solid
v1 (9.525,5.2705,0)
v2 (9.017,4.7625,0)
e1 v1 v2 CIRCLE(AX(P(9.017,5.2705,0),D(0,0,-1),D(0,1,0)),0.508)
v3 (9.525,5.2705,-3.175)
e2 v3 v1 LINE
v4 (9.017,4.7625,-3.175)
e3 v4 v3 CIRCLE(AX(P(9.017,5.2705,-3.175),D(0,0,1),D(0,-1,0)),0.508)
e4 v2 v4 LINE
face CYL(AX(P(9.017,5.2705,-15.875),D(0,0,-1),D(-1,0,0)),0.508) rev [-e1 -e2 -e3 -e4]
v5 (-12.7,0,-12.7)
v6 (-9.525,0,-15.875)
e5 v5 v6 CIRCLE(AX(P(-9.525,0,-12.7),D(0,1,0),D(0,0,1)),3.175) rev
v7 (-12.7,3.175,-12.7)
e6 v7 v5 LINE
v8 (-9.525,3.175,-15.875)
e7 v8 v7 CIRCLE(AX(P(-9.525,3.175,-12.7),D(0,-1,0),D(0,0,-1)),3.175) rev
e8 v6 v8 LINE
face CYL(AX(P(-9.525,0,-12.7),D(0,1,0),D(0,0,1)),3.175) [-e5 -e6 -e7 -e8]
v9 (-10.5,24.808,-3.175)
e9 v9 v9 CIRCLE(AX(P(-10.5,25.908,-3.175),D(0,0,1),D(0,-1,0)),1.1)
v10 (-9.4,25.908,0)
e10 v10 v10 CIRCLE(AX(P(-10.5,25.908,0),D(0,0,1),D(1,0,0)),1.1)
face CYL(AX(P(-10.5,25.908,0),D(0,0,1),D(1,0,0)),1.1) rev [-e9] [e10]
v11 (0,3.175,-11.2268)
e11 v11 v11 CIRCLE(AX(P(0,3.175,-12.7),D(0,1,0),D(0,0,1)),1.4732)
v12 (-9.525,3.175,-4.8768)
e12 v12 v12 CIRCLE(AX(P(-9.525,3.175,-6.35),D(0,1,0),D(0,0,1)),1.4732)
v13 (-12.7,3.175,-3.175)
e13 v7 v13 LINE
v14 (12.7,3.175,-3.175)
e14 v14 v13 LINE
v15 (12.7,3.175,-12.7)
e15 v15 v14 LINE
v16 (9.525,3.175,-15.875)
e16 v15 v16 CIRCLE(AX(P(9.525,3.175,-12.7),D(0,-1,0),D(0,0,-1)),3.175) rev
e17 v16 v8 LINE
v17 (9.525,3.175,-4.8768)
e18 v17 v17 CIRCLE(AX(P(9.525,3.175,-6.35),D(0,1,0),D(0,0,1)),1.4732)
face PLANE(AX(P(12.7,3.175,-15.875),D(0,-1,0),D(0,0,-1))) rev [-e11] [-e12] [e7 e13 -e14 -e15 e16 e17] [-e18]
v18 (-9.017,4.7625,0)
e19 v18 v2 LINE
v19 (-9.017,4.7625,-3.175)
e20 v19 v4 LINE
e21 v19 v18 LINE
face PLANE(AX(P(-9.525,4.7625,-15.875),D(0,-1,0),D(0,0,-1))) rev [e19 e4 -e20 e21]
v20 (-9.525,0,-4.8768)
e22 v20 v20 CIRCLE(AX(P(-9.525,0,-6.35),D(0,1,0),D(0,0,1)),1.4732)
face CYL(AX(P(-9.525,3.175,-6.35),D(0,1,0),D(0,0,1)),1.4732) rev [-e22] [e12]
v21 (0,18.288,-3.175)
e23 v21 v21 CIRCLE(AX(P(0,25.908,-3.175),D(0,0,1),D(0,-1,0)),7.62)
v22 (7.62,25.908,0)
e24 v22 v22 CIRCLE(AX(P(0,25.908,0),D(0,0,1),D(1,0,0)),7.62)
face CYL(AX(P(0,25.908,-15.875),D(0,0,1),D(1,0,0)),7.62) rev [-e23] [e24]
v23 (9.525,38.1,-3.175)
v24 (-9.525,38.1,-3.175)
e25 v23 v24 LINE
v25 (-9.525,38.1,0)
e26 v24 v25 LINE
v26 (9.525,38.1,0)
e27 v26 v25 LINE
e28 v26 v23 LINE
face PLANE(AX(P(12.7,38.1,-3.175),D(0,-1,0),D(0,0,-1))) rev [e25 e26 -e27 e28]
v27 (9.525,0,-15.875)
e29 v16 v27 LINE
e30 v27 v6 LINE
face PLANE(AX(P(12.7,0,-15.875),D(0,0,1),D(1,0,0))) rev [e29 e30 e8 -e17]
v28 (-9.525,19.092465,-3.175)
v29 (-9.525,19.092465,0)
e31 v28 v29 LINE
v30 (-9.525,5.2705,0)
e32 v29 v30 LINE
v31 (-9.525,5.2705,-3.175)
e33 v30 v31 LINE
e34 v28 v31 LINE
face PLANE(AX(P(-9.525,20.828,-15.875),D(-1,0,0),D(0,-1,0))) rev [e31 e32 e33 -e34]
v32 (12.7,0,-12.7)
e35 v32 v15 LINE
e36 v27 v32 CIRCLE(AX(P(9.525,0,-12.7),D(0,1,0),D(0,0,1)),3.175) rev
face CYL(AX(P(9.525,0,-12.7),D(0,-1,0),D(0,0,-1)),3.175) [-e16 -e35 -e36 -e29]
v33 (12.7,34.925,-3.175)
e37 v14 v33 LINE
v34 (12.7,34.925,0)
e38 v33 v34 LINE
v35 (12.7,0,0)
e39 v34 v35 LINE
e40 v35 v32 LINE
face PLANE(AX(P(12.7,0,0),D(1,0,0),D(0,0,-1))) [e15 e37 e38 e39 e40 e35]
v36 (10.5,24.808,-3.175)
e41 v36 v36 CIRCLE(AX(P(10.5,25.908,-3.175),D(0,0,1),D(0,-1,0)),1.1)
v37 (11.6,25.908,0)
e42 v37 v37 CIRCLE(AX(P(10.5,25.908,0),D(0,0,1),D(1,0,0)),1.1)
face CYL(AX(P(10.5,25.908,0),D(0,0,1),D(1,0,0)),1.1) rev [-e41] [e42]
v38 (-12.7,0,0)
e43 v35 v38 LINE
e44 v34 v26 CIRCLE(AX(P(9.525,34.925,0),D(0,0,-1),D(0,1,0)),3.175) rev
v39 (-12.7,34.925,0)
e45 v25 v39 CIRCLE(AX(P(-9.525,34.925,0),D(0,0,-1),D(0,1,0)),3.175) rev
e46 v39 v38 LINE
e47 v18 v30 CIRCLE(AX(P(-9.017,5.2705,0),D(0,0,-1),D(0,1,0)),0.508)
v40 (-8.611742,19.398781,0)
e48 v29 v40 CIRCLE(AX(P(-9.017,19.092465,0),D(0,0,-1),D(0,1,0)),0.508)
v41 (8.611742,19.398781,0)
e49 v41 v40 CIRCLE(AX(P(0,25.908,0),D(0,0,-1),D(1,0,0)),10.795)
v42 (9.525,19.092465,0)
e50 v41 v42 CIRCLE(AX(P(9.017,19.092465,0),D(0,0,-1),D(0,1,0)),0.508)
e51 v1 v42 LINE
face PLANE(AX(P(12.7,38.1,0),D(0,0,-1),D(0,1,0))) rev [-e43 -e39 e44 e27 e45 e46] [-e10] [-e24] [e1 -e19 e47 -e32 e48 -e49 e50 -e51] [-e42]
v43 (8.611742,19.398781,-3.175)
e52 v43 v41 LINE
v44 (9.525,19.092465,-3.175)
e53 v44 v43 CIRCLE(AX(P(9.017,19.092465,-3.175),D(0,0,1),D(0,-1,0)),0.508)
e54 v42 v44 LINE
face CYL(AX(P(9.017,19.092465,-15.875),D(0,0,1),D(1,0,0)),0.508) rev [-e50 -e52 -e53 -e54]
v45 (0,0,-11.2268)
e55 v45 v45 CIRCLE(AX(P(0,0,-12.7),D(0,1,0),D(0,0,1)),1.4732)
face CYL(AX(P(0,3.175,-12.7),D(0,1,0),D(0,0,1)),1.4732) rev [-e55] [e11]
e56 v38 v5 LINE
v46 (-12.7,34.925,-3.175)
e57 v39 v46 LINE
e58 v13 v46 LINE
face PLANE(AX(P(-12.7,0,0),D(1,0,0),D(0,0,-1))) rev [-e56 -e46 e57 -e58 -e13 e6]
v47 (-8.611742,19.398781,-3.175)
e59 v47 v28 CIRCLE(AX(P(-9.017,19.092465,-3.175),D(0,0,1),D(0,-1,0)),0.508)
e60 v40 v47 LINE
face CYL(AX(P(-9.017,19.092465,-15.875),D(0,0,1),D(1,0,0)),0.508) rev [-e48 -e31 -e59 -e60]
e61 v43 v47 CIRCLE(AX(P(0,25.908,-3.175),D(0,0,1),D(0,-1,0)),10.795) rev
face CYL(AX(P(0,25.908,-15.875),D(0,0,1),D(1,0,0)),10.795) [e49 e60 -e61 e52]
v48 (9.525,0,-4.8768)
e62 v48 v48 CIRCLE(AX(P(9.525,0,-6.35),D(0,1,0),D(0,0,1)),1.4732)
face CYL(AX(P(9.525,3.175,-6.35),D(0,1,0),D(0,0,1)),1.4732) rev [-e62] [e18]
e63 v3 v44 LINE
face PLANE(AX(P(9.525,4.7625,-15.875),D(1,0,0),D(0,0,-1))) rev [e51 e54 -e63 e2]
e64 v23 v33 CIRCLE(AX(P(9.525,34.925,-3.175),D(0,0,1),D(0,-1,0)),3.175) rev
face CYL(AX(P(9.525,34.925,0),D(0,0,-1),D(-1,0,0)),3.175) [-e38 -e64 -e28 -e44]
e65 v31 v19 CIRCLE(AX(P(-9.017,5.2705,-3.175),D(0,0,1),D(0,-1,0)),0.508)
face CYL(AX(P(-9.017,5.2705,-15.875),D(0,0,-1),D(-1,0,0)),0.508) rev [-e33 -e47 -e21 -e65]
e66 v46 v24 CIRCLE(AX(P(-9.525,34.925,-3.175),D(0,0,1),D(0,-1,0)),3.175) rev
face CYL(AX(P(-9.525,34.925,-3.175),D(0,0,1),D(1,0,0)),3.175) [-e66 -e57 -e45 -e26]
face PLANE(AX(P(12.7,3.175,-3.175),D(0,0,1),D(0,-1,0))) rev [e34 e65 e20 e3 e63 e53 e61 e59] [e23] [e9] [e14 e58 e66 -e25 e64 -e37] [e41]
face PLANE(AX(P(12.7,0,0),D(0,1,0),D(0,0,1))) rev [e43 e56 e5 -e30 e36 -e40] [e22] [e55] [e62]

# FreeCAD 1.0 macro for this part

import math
import FreeCAD as App
import Part
import Sketcher

V = App.Vector
Q = App.Units.Quantity


def edges_at(feature, points):
    """Names of the edges that pass closest to the given points."""
    edges = feature.Shape.Edges
    near = lambda p: min(range(len(edges)), key=lambda i: edges[i].distToShape(Part.Vertex(*p))[0])
    return sorted({f"Edge{near(p) + 1}" for p in points})

doc = App.newDocument("Part")
body = doc.addObject("PartDesign::Body", "Body")

sketch1 = body.newObject("Sketcher::SketchObject", "Sketch")
sketch1.AttachmentSupport = (doc.getObject("YZ_Plane"), [""])
sketch1.MapMode = "FlatFace"
sketch1.addGeometry(Part.LineSegment(V(38.1, 0, 0), V(0, 0, 0)), False)
sketch1.addGeometry(Part.LineSegment(V(0, 0, 0), V(0, -15.9, 0)), False)
sketch1.addGeometry(Part.LineSegment(V(0, -15.9, 0), V(3.2, -15.9, 0)), False)
sketch1.addGeometry(Part.LineSegment(V(3.2, -15.9, 0), V(3.2, -3.2, 0)), False)
sketch1.addGeometry(Part.LineSegment(V(3.2, -3.2, 0), V(38.1, -3.2, 0)), False)
sketch1.addGeometry(Part.LineSegment(V(38.1, -3.2, 0), V(38.1, 0, 0)), False)
sketch1.addConstraint(Sketcher.Constraint("Coincident", 0, 2, 1, 1))
sketch1.addConstraint(Sketcher.Constraint("Coincident", 1, 2, 2, 1))
sketch1.addConstraint(Sketcher.Constraint("Coincident", 2, 2, 3, 1))
sketch1.addConstraint(Sketcher.Constraint("Coincident", 3, 2, 4, 1))
sketch1.addConstraint(Sketcher.Constraint("Coincident", 4, 2, 5, 1))
sketch1.addConstraint(Sketcher.Constraint("Coincident", 5, 2, 0, 1))
sketch1.addConstraint(Sketcher.Constraint("Horizontal", 0))
sketch1.addConstraint(Sketcher.Constraint("Vertical", 1))
sketch1.addConstraint(Sketcher.Constraint("Horizontal", 2))
sketch1.addConstraint(Sketcher.Constraint("Vertical", 3))
sketch1.addConstraint(Sketcher.Constraint("Horizontal", 4))
sketch1.addConstraint(Sketcher.Constraint("Vertical", 5))
sketch1.addConstraint(Sketcher.Constraint("Coincident", 0, 2, -1, 1))
sketch1.addConstraint(Sketcher.Constraint("Equal", 2, 5))
sketch1.addConstraint(Sketcher.Constraint("DistanceX", 0, 2, 0, 1, Q("1.5 in")))
sketch1.addConstraint(Sketcher.Constraint("DistanceY", 3, 1, 3, 2, Q("0.5 in")))
sketch1.addConstraint(Sketcher.Constraint("DistanceX", 2, 1, 2, 2, Q("0.125 in")))
pad1 = body.newObject("PartDesign::Pad", "Pad")
pad1.Profile = sketch1
pad1.Length = Q("1 in")
pad1.Midplane = True

sketch2 = body.newObject("Sketcher::SketchObject", "Sketch001")
sketch2.AttachmentSupport = (doc.getObject("XY_Plane"), [""])
sketch2.MapMode = "FlatFace"
sketch2.addGeometry(Part.Circle(V(0, 26, 0), V(0, 0, 1), 8), False)
sketch2.addConstraint(Sketcher.Constraint("PointOnObject", 0, 3, -2))
sketch2.addConstraint(Sketcher.Constraint("Diameter", 0, Q("0.6 in")))
sketch2.addConstraint(Sketcher.Constraint("DistanceY", -1, 1, 0, 3, Q("1.02 in")))
pocket1 = body.newObject("PartDesign::Pocket", "Pocket")
pocket1.Profile = sketch2
pocket1.Type = "ThroughAll"
doc.recompute()

fillet = body.newObject("PartDesign::Fillet", "Fillet")
fillet.Base = (pocket1, edges_at(pocket1, [
    (12.7, 1.587, -15.875),
    (12.7, 38.1, -1.587),
    (-12.7, 1.587, -15.875),
    (-12.7, 38.1, -1.587),
]))
fillet.Radius = Q("0.125 in")

sketch3 = body.newObject("Sketcher::SketchObject", "Sketch002")
sketch3.AttachmentSupport = (doc.getObject("XZ_Plane"), [""])
sketch3.MapMode = "FlatFace"
sketch3.AttachmentOffset = App.Placement(V(0, 0, -0.125 * 25.4), App.Rotation())
sketch3.addGeometry(Part.Circle(V(-9.5, -6.3, 0), V(0, 0, 1), 1.5), False)
sketch3.addGeometry(Part.Circle(V(0, -12.7, 0), V(0, 0, 1), 1.5), False)
sketch3.addGeometry(Part.Circle(V(9.5, -6.3, 0), V(0, 0, 1), 1.5), False)
sketch3.addConstraint(Sketcher.Constraint("Equal", 0, 1))
sketch3.addConstraint(Sketcher.Constraint("Equal", 1, 2))
sketch3.addConstraint(Sketcher.Constraint("Symmetric", 0, 3, 2, 3, -2))
sketch3.addConstraint(Sketcher.Constraint("PointOnObject", 1, 3, -2))
sketch3.addConstraint(Sketcher.Constraint("Diameter", 0, Q("0.116 in")))
sketch3.addConstraint(Sketcher.Constraint("DistanceY", 1, 3, -1, 1, Q("0.5 in")))
sketch3.addConstraint(Sketcher.Constraint("DistanceY", 0, 3, -1, 1, Q("0.25 in")))
sketch3.addConstraint(Sketcher.Constraint("DistanceX", 0, 3, 2, 3, Q("0.75 in")))
doc.recompute()
hole = body.newObject("PartDesign::Hole", "Hole")
hole.Profile = sketch3
hole.ThreadType = "None"
hole.Diameter = Q("0.116 in")
hole.DepthType = "ThroughAll"
hole.Reversed = True

sketch4 = body.newObject("Sketcher::SketchObject", "Sketch003")
sketch4.AttachmentSupport = (doc.getObject("XY_Plane"), [""])
sketch4.MapMode = "FlatFace"
sketch4.addGeometry(Part.Circle(V(10.5, 25.9, 0), V(0, 0, 1), 1.1), False)
sketch4.addGeometry(Part.Circle(V(-10.5, 25.9, 0), V(0, 0, 1), 1.1), False)
sketch4.addConstraint(Sketcher.Constraint("Equal", 0, 1))
sketch4.addConstraint(Sketcher.Constraint("Symmetric", 0, 3, 1, 3, -2))
sketch4.addConstraint(Sketcher.Constraint("Diameter", 0, Q("2.2 mm")))
sketch4.addConstraint(Sketcher.Constraint("DistanceY", -1, 1, 0, 3, Q("1.02 in")))
sketch4.addConstraint(Sketcher.Constraint("DistanceX", -1, 1, 0, 3, Q("10.5 mm")))
doc.recompute()
hole2 = body.newObject("PartDesign::Hole", "Hole001")
hole2.Profile = sketch4
hole2.ThreadType = "None"
hole2.Diameter = 2.2
hole2.DepthType = "ThroughAll"

sketch5 = body.newObject("Sketcher::SketchObject", "Sketch004")
sketch5.AttachmentSupport = (doc.getObject("XY_Plane"), [""])
sketch5.MapMode = "FlatFace"
sketch5.addGeometry(Part.LineSegment(V(-10, 21, 0), V(-10, 5, 0)), False)
sketch5.addGeometry(Part.LineSegment(V(-10, 5, 0), V(10, 5, 0)), False)
sketch5.addGeometry(Part.LineSegment(V(10, 5, 0), V(10, 21, 0)), False)
sketch5.addGeometry(Part.ArcOfCircle(Part.Circle(V(0, 26, 0), V(0, 0, 1), 11), math.radians(-152), math.radians(-28)), False)
sketch5.addConstraint(Sketcher.Constraint("Coincident", 0, 2, 1, 1))
sketch5.addConstraint(Sketcher.Constraint("Coincident", 1, 2, 2, 1))
sketch5.addConstraint(Sketcher.Constraint("Coincident", 2, 2, 3, 2))
sketch5.addConstraint(Sketcher.Constraint("Coincident", 3, 1, 0, 1))
sketch5.addConstraint(Sketcher.Constraint("Vertical", 0))
sketch5.addConstraint(Sketcher.Constraint("Horizontal", 1))
sketch5.addConstraint(Sketcher.Constraint("Vertical", 2))
sketch5.addConstraint(Sketcher.Constraint("Symmetric", 2, 2, 3, 1, -2))
sketch5.addConstraint(Sketcher.Constraint("Radius", 3, Q("0.425 in")))
sketch5.addConstraint(Sketcher.Constraint("DistanceX", 1, 1, 1, 2, Q("0.75 in")))
sketch5.addConstraint(Sketcher.Constraint("DistanceY", -1, 1, 3, 3, Q("1.02 in")))
sketch5.addConstraint(Sketcher.Constraint("DistanceY", 0, 2, 0, 1, Q("0.6325 in")))
pocket2 = body.newObject("PartDesign::Pocket", "Pocket001")
pocket2.Profile = sketch5
pocket2.Type = "ThroughAll"
doc.recompute()

fillet2 = body.newObject("PartDesign::Fillet", "Fillet001")
fillet2.Base = (pocket2, edges_at(pocket2, [
    (-9.525, 20.828, -1.587),
    (9.525, 20.828, -1.587),
    (9.525, 4.763, -1.587),
    (-9.525, 4.763, -1.587),
]))
fillet2.Radius = Q("0.02 in")

doc.recompute()
